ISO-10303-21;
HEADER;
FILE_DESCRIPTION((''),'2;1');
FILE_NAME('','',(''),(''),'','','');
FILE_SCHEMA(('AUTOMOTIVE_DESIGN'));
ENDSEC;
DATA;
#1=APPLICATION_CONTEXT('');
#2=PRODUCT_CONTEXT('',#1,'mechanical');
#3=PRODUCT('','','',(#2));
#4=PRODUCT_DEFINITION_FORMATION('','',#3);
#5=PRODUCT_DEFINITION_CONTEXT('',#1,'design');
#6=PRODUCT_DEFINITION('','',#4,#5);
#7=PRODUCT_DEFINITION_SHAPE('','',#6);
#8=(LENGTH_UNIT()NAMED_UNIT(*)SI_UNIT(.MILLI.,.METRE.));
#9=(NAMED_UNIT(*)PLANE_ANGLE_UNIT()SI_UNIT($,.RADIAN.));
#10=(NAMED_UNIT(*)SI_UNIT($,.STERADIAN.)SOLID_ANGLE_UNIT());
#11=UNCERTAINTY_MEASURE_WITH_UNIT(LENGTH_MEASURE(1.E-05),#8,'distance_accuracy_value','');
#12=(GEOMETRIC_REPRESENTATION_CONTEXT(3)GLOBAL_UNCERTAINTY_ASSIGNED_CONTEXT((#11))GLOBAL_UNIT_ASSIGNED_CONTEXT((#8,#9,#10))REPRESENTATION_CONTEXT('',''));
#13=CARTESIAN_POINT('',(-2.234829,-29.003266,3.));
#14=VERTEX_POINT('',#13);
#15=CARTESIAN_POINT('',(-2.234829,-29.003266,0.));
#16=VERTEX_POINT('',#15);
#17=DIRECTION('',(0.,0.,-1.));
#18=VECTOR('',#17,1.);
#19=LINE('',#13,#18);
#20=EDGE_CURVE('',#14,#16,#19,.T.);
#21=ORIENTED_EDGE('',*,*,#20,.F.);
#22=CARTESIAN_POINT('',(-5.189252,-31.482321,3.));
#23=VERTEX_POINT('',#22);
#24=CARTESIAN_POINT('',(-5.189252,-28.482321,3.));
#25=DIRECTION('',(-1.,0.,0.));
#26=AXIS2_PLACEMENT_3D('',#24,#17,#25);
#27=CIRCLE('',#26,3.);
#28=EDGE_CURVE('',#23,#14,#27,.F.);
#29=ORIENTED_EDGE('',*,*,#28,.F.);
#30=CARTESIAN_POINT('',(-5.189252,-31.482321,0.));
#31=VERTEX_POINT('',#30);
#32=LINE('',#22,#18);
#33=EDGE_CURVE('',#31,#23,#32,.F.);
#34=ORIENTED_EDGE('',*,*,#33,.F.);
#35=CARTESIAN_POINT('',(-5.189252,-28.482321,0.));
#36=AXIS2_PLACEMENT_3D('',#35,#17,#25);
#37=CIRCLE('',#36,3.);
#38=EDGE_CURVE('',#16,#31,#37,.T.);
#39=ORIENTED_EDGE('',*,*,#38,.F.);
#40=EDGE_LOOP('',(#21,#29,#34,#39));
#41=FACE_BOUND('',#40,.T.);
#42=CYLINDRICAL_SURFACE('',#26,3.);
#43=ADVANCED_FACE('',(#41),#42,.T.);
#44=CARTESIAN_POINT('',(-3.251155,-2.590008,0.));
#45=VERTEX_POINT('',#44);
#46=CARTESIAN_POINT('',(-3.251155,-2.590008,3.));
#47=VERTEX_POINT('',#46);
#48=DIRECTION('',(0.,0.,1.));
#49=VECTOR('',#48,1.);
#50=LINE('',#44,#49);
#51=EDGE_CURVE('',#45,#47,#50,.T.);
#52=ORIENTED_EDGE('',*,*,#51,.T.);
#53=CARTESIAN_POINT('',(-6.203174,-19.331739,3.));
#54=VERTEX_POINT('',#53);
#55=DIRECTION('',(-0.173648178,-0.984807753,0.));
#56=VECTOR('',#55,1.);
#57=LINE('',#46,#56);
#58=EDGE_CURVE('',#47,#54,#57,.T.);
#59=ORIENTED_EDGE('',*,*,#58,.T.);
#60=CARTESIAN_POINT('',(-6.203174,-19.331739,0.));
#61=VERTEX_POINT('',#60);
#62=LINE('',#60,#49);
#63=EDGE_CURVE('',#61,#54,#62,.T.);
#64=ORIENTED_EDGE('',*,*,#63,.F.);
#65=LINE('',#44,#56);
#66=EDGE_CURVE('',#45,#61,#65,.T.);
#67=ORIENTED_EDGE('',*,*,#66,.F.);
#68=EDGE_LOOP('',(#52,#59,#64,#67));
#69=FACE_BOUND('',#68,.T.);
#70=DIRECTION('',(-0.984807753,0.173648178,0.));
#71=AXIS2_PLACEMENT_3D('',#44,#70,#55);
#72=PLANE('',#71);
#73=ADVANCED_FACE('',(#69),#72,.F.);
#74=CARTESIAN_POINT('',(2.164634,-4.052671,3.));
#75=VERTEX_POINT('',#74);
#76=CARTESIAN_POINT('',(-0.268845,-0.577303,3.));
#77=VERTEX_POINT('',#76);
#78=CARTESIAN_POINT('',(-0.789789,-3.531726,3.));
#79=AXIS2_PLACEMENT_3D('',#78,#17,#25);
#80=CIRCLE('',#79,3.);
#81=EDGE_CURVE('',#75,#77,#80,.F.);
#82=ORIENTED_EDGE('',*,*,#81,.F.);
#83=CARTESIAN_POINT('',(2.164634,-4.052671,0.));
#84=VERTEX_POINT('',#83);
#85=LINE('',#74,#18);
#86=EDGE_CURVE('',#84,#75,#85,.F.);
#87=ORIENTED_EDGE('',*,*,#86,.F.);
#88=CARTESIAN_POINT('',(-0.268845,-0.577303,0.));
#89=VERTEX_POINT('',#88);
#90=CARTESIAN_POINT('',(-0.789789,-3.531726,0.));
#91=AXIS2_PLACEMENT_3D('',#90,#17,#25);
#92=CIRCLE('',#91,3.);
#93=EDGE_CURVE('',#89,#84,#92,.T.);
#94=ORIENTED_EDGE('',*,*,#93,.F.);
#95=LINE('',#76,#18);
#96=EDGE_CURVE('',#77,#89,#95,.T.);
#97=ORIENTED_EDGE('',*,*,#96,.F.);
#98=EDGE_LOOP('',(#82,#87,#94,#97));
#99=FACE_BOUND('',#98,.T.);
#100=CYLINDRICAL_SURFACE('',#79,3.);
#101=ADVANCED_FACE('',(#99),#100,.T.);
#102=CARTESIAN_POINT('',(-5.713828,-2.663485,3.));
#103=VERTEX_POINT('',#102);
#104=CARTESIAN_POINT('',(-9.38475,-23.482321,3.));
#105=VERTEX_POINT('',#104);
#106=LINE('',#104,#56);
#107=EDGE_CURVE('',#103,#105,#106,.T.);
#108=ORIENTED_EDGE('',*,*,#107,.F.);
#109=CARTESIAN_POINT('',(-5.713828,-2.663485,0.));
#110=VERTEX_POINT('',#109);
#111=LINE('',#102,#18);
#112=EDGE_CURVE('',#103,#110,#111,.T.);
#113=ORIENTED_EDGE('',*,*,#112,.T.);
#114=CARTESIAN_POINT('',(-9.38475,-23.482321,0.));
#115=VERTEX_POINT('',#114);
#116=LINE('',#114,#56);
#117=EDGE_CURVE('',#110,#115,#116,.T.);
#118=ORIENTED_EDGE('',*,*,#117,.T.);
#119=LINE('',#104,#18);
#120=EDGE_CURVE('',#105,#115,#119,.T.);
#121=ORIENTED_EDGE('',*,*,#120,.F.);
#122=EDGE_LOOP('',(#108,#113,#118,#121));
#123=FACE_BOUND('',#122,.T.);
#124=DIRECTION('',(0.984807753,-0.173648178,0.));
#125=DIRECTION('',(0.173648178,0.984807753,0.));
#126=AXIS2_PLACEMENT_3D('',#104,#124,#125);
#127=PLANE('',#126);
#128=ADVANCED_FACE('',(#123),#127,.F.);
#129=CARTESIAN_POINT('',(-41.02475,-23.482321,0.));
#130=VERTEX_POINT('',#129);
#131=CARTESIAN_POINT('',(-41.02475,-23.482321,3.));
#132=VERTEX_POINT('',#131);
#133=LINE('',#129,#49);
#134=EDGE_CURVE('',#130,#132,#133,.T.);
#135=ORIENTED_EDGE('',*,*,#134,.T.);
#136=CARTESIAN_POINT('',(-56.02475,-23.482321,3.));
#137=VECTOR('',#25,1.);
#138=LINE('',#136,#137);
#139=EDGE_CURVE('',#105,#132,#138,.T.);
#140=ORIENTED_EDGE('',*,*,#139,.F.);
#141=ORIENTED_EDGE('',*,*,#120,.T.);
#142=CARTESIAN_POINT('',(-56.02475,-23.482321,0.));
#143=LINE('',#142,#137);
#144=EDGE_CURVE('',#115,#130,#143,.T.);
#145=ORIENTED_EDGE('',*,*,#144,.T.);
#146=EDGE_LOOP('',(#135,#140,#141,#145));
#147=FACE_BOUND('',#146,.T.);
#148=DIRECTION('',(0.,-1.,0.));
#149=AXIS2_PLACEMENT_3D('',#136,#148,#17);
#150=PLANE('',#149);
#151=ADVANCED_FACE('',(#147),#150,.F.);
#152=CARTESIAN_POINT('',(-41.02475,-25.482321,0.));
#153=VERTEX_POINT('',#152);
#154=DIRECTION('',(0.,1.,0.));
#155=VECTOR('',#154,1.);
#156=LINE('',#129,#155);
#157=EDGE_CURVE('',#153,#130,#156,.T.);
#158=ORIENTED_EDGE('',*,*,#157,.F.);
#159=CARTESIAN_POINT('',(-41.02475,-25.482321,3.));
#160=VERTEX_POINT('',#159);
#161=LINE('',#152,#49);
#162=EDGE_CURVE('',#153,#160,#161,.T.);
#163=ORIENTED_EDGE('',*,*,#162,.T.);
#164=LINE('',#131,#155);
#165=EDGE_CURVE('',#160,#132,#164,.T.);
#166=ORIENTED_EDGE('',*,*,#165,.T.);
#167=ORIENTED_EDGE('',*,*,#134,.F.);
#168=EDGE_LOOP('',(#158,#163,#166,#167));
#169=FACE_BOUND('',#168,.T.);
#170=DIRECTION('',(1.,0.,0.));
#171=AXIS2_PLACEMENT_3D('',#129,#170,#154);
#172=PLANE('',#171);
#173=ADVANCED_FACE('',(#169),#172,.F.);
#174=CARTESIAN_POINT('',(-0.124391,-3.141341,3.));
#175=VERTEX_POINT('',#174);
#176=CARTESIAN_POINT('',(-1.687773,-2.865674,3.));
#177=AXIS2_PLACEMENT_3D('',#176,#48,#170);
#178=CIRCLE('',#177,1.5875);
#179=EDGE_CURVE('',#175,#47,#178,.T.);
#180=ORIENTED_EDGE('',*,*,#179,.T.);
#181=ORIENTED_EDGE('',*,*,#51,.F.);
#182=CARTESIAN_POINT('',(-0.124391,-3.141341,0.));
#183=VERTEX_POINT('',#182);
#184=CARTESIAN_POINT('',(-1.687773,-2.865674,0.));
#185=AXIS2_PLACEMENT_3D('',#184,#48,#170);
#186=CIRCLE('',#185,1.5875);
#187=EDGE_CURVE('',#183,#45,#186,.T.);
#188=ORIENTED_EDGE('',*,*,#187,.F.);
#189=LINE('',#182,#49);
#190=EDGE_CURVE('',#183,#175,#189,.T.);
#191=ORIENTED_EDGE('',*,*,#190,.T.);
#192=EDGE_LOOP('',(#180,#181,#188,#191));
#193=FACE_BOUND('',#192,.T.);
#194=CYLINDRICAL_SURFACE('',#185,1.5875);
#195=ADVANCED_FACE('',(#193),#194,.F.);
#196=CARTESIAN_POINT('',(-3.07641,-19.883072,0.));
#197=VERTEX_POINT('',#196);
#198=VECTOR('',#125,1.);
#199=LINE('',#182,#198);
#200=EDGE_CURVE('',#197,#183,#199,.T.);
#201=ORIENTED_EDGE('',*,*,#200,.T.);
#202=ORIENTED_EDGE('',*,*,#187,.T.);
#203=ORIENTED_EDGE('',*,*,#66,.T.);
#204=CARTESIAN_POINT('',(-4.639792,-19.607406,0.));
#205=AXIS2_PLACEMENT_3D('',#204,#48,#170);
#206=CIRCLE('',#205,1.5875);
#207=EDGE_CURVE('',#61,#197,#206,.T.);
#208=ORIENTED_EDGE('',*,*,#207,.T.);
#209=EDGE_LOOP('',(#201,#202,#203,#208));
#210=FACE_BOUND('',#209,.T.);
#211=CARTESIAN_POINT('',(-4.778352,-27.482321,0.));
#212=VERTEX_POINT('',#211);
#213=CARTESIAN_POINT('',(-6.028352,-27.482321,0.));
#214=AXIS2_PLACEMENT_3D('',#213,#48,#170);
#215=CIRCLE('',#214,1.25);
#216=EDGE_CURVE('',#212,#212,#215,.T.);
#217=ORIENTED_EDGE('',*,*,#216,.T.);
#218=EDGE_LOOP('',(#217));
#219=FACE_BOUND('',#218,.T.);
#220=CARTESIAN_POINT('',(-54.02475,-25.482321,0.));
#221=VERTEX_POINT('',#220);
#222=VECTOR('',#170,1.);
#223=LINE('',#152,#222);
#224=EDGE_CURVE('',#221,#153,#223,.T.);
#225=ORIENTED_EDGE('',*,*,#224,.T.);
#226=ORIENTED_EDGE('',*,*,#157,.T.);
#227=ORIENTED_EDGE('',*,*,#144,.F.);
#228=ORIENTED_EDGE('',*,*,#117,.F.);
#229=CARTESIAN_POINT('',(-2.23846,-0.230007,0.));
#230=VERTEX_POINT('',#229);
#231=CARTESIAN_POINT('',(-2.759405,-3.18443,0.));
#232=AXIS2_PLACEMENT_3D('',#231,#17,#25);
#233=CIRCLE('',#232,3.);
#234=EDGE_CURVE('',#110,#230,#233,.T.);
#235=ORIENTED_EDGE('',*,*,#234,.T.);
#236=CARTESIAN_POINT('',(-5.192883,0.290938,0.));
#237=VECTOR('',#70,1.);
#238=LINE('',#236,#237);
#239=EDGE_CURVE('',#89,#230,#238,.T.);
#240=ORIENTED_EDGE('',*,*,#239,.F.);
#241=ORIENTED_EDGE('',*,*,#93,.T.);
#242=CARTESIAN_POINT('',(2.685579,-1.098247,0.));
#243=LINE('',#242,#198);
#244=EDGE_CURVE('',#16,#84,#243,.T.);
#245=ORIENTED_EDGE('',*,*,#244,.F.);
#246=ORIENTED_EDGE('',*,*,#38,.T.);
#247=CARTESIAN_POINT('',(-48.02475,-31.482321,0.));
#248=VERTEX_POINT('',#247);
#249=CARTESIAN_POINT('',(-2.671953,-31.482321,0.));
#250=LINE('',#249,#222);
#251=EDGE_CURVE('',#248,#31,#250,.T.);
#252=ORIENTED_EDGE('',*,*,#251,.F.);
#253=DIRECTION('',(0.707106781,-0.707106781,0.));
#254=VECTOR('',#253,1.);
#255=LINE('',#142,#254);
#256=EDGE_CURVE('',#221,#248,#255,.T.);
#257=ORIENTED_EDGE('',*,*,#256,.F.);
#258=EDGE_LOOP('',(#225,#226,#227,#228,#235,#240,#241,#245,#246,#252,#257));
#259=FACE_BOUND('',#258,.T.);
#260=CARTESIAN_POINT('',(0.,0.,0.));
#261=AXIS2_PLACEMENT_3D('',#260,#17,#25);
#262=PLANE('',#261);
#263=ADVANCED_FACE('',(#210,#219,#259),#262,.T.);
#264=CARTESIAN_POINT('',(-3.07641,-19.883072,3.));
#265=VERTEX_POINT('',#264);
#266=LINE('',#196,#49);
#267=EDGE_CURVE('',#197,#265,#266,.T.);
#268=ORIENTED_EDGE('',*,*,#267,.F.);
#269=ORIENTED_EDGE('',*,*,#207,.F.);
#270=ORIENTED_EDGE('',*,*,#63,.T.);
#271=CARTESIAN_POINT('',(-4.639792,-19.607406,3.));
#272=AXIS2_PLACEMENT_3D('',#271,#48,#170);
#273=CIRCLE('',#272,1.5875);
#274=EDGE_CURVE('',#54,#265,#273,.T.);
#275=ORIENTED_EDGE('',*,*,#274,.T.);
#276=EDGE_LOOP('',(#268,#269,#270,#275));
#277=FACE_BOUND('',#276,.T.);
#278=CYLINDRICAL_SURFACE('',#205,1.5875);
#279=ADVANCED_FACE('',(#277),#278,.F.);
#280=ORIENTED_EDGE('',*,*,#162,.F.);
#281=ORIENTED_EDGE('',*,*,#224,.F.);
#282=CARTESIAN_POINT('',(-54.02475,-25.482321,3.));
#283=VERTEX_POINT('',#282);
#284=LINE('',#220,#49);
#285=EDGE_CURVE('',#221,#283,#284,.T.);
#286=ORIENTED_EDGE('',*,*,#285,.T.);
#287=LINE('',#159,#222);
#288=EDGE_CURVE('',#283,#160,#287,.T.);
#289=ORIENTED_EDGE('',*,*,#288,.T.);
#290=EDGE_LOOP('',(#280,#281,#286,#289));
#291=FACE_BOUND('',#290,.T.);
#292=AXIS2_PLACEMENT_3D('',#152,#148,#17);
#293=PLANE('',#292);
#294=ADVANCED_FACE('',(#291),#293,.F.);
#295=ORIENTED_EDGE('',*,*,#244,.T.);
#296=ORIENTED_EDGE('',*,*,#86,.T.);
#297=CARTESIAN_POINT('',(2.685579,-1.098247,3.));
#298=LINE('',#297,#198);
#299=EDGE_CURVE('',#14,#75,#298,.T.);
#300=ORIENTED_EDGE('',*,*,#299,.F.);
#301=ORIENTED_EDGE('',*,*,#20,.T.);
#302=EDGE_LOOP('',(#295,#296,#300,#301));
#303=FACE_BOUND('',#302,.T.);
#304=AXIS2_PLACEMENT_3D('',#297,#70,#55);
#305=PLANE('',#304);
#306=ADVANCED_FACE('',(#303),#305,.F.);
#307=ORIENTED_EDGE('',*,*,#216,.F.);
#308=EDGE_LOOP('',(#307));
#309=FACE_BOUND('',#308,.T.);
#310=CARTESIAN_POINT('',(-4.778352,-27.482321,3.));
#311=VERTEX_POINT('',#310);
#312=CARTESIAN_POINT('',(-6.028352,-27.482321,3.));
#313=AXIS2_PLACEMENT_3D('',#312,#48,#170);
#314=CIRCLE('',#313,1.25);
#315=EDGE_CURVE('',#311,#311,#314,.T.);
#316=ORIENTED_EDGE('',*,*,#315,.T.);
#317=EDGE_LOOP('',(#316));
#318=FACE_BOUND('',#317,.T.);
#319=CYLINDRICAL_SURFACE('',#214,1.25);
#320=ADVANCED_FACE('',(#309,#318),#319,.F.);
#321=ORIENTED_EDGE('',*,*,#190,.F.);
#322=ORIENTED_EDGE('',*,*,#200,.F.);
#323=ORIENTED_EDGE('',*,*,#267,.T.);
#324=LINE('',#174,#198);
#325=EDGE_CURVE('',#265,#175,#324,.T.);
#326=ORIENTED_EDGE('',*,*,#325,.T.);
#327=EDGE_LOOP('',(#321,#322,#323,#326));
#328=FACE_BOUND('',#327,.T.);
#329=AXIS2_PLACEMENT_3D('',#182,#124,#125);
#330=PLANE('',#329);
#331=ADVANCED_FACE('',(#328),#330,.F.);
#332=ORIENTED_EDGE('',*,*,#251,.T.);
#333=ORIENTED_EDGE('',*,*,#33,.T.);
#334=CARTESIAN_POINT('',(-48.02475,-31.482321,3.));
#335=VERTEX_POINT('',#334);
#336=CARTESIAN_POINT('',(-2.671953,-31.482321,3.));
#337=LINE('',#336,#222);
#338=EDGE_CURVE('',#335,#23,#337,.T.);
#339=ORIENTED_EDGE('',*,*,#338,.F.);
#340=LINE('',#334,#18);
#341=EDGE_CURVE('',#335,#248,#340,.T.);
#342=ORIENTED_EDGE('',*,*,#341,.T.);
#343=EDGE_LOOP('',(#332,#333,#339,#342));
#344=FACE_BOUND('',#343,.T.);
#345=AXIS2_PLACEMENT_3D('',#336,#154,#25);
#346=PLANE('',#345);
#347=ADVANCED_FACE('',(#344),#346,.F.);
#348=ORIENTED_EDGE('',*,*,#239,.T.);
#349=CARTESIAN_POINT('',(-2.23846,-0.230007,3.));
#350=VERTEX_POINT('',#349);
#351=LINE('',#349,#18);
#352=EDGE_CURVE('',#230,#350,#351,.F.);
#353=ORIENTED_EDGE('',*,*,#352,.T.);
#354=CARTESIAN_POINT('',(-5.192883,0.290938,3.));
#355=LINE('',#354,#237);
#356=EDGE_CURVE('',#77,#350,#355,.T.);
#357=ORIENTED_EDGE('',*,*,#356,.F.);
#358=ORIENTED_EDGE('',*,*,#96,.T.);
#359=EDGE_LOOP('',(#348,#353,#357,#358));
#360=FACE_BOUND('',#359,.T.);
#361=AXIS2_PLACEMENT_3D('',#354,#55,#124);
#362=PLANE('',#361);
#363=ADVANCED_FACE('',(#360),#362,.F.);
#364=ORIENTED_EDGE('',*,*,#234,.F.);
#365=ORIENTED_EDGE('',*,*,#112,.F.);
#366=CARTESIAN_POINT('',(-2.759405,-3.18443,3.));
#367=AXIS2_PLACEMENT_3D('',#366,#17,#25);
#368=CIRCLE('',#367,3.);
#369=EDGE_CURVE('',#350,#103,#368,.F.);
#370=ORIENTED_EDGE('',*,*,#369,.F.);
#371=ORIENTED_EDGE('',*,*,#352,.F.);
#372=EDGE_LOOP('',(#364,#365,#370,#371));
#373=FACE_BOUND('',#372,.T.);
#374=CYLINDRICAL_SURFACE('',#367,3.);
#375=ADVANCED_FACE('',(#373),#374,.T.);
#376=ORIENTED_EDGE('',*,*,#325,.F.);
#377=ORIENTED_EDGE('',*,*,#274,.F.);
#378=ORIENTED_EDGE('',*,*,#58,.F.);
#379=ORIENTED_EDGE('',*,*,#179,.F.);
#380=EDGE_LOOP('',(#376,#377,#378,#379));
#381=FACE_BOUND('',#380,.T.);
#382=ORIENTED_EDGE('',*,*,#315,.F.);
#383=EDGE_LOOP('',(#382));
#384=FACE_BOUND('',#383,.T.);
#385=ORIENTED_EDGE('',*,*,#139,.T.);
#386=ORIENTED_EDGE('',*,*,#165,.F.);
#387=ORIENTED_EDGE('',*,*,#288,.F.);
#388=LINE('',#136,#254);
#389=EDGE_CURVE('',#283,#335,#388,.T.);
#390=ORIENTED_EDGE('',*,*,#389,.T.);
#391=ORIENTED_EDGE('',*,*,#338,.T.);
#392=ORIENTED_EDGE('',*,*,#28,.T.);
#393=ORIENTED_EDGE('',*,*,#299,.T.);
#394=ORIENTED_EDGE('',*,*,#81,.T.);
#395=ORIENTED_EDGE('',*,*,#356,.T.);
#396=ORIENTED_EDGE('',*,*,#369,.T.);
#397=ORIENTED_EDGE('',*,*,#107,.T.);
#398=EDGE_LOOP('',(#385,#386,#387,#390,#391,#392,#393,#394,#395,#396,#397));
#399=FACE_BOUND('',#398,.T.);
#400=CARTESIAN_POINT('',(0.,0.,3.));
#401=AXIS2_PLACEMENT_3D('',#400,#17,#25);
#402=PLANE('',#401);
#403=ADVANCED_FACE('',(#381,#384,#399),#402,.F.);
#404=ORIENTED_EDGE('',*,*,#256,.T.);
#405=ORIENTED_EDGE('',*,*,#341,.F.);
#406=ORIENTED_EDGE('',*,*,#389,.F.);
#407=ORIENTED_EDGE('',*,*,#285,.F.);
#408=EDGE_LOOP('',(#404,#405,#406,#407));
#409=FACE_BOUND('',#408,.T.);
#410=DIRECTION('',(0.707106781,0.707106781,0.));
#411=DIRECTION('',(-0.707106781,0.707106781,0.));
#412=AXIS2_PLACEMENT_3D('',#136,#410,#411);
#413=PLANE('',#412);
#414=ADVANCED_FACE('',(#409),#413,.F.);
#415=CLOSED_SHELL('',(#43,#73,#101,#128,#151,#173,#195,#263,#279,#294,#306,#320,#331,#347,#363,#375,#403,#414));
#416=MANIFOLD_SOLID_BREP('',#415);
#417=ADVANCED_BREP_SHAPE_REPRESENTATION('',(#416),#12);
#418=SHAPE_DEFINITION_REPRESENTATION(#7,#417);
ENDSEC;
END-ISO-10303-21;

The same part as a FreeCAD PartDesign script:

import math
import FreeCAD as App
import Part
import Sketcher

V = App.Vector
Q = App.Units.Quantity


def edges_at(feature, points):
    """Names of the edges that pass closest to the given points."""
    edges = feature.Shape.Edges
    near = lambda p: min(range(len(edges)), key=lambda i: edges[i].distToShape(Part.Vertex(*p))[0])
    return sorted({f"Edge{near(p) + 1}" for p in points})

doc = App.newDocument("Part")
body = doc.addObject("PartDesign::Body", "Body")

# Sketch on XY plane
sketch1 = doc.addObject("Sketcher::SketchObject", "Sketch")
body.addObject(sketch1)
sketch1.AttachmentSupport = (doc.XY_Plane, [""])
sketch1.MapMode = "FlatFace"
sketch1.addGeometry(Part.LineSegment(V(-9, -23, 0), V(-56, -23, 0)), False)
sketch1.addGeometry(Part.LineSegment(V(-56, -23, 0), V(-48, -31, 0)), False)
sketch1.addGeometry(Part.LineSegment(V(-48, -31, 0), V(-3, -31, 0)), False)
sketch1.addGeometry(Part.LineSegment(V(-3, -31, 0), V(3, -1, 0)), False)
sketch1.addGeometry(Part.LineSegment(V(3, -1, 0), V(-5, 0, 0)), False)
sketch1.addGeometry(Part.LineSegment(V(-5, 0, 0), V(-9, -23, 0)), False)
sketch1.addConstraint(Sketcher.Constraint("Coincident", 0, 2, 1, 1))
sketch1.addConstraint(Sketcher.Constraint("Coincident", 1, 2, 2, 1))
sketch1.addConstraint(Sketcher.Constraint("Coincident", 2, 2, 3, 1))
sketch1.addConstraint(Sketcher.Constraint("Coincident", 3, 2, 4, 1))
sketch1.addConstraint(Sketcher.Constraint("Coincident", 4, 2, 5, 1))
sketch1.addConstraint(Sketcher.Constraint("Coincident", 5, 2, 0, 1))
sketch1.addConstraint(Sketcher.Constraint("Horizontal", 0))
sketch1.addConstraint(Sketcher.Constraint("Horizontal", 2))
sketch1.addConstraint(Sketcher.Constraint("Perpendicular", 3, 4))
sketch1.addConstraint(Sketcher.Constraint("Perpendicular", 4, 5))
sketch1.addConstraint(Sketcher.Constraint("Angle", 1, Q("-45 deg")))
sketch1.addConstraint(Sketcher.Constraint("Angle", 3, Q("80 deg")))
sketch1.addConstraint(Sketcher.Constraint("Distance", 4, 8.0))
sketch1.addConstraint(Sketcher.Constraint("DistanceX", 0, 2, 1, 2, 8.0))
sketch1.addConstraint(Sketcher.Constraint("DistanceX", 0, 2, 0, 1, 46.64))
sketch1.addConstraint(Sketcher.Constraint("Distance", 5, 24.14))
sketch1.addConstraint(Sketcher.Constraint("DistanceX", 0, 2, -1, 1, 56.02475))
sketch1.addConstraint(Sketcher.Constraint("DistanceY", 0, 2, -1, 1, 23.482321))
pad1 = doc.addObject("PartDesign::Pad", "Pad")
body.addObject(pad1)
pad1.Profile = sketch1
pad1.Length = 3

# Sketch on XY plane
sketch2 = doc.addObject("Sketcher::SketchObject", "Sketch001")
body.addObject(sketch2)
sketch2.AttachmentSupport = (doc.XY_Plane, [""])
sketch2.MapMode = "FlatFace"
sketch2.AttachmentOffset = App.Placement(V(0, 0, 3), App.Rotation())
sketch2.addGeometry(Part.Circle(V(-6, -27.5, 0), V(0, 0, 1), 1.2), False)
sketch2.addGeometry(Part.LineSegment(V(-41, -23.5, 0), V(-56, -23.5, 0)), False)
sketch2.addGeometry(Part.LineSegment(V(-56, -23.5, 0), V(-54, -25.5, 0)), False)
sketch2.addGeometry(Part.LineSegment(V(-54, -25.5, 0), V(-41, -25.5, 0)), False)
sketch2.addGeometry(Part.LineSegment(V(-41, -25.5, 0), V(-41, -23.5, 0)), False)
sketch2.addGeometry(Part.LineSegment(V(-3.3, -2.6, 0), V(-6.2, -19.3, 0)), False)
sketch2.addGeometry(Part.ArcOfCircle(Part.Circle(V(-4.6, -19.6, 0), V(0, 0, 1), 1.6), math.radians(170), math.radians(350)), False)
sketch2.addGeometry(Part.LineSegment(V(-3.1, -19.9, 0), V(-0.1, -3.1, 0)), False)
sketch2.addGeometry(Part.ArcOfCircle(Part.Circle(V(-1.7, -2.9, 0), V(0, 0, 1), 1.6), math.radians(-10), math.radians(170)), False)
sketch2.addConstraint(Sketcher.Constraint("Coincident", 1, 2, 2, 1))
sketch2.addConstraint(Sketcher.Constraint("Coincident", 2, 2, 3, 1))
sketch2.addConstraint(Sketcher.Constraint("Coincident", 3, 2, 4, 1))
sketch2.addConstraint(Sketcher.Constraint("Coincident", 4, 2, 1, 1))
sketch2.addConstraint(Sketcher.Constraint("Tangent", 5, 2, 6, 1))
sketch2.addConstraint(Sketcher.Constraint("Tangent", 6, 2, 7, 1))
sketch2.addConstraint(Sketcher.Constraint("Tangent", 7, 2, 8, 1))
sketch2.addConstraint(Sketcher.Constraint("Tangent", 8, 2, 5, 1))
sketch2.addConstraint(Sketcher.Constraint("Horizontal", 1))
sketch2.addConstraint(Sketcher.Constraint("Horizontal", 3))
sketch2.addConstraint(Sketcher.Constraint("Vertical", 4))
sketch2.addConstraint(Sketcher.Constraint("Equal", 6, 8))
sketch2.addConstraint(Sketcher.Constraint("Diameter", 0, 2.5))
sketch2.addConstraint(Sketcher.Constraint("DistanceX", 1, 2, 1, 1, 15.0))
sketch2.addConstraint(Sketcher.Constraint("DistanceX", 3, 1, 3, 2, 13.0))
sketch2.addConstraint(Sketcher.Constraint("DistanceY", 4, 1, 4, 2, 2.0))
sketch2.addConstraint(Sketcher.Constraint("Angle", 5, Q("-100 deg")))
sketch2.addConstraint(Sketcher.Constraint("Distance", 5, 17.0))
sketch2.addConstraint(Sketcher.Constraint("DistanceY", 0, 3, 1, 2, 4.0))
sketch2.addConstraint(Sketcher.Constraint("Radius", 6, 1.5875))
sketch2.addConstraint(Sketcher.Constraint("DistanceX", 1, 2, 0, 3, 49.996399))
sketch2.addConstraint(Sketcher.Constraint("DistanceX", 0, 3, -1, 1, 6.028352))
sketch2.addConstraint(Sketcher.Constraint("DistanceY", 0, 3, -1, 1, 27.482321))
sketch2.addConstraint(Sketcher.Constraint("DistanceX", 6, 3, -1, 1, 4.639792))
sketch2.addConstraint(Sketcher.Constraint("DistanceY", 5, 2, -1, 1, 19.331739))
pocket1 = doc.addObject("PartDesign::Pocket", "Pocket")
body.addObject(pocket1)
pocket1.Profile = sketch2
pocket1.Length = 3
doc.recompute()

fillet = doc.addObject("PartDesign::Fillet", "Fillet")
body.addObject(fillet)
fillet.Base = (pocket1, edges_at(pocket1, [(-5.193, 0.291, 1.5), (2.686, -1.098, 1.5), (-2.672, -31.482, 1.5)]))
fillet.Radius = 3

doc.recompute()
